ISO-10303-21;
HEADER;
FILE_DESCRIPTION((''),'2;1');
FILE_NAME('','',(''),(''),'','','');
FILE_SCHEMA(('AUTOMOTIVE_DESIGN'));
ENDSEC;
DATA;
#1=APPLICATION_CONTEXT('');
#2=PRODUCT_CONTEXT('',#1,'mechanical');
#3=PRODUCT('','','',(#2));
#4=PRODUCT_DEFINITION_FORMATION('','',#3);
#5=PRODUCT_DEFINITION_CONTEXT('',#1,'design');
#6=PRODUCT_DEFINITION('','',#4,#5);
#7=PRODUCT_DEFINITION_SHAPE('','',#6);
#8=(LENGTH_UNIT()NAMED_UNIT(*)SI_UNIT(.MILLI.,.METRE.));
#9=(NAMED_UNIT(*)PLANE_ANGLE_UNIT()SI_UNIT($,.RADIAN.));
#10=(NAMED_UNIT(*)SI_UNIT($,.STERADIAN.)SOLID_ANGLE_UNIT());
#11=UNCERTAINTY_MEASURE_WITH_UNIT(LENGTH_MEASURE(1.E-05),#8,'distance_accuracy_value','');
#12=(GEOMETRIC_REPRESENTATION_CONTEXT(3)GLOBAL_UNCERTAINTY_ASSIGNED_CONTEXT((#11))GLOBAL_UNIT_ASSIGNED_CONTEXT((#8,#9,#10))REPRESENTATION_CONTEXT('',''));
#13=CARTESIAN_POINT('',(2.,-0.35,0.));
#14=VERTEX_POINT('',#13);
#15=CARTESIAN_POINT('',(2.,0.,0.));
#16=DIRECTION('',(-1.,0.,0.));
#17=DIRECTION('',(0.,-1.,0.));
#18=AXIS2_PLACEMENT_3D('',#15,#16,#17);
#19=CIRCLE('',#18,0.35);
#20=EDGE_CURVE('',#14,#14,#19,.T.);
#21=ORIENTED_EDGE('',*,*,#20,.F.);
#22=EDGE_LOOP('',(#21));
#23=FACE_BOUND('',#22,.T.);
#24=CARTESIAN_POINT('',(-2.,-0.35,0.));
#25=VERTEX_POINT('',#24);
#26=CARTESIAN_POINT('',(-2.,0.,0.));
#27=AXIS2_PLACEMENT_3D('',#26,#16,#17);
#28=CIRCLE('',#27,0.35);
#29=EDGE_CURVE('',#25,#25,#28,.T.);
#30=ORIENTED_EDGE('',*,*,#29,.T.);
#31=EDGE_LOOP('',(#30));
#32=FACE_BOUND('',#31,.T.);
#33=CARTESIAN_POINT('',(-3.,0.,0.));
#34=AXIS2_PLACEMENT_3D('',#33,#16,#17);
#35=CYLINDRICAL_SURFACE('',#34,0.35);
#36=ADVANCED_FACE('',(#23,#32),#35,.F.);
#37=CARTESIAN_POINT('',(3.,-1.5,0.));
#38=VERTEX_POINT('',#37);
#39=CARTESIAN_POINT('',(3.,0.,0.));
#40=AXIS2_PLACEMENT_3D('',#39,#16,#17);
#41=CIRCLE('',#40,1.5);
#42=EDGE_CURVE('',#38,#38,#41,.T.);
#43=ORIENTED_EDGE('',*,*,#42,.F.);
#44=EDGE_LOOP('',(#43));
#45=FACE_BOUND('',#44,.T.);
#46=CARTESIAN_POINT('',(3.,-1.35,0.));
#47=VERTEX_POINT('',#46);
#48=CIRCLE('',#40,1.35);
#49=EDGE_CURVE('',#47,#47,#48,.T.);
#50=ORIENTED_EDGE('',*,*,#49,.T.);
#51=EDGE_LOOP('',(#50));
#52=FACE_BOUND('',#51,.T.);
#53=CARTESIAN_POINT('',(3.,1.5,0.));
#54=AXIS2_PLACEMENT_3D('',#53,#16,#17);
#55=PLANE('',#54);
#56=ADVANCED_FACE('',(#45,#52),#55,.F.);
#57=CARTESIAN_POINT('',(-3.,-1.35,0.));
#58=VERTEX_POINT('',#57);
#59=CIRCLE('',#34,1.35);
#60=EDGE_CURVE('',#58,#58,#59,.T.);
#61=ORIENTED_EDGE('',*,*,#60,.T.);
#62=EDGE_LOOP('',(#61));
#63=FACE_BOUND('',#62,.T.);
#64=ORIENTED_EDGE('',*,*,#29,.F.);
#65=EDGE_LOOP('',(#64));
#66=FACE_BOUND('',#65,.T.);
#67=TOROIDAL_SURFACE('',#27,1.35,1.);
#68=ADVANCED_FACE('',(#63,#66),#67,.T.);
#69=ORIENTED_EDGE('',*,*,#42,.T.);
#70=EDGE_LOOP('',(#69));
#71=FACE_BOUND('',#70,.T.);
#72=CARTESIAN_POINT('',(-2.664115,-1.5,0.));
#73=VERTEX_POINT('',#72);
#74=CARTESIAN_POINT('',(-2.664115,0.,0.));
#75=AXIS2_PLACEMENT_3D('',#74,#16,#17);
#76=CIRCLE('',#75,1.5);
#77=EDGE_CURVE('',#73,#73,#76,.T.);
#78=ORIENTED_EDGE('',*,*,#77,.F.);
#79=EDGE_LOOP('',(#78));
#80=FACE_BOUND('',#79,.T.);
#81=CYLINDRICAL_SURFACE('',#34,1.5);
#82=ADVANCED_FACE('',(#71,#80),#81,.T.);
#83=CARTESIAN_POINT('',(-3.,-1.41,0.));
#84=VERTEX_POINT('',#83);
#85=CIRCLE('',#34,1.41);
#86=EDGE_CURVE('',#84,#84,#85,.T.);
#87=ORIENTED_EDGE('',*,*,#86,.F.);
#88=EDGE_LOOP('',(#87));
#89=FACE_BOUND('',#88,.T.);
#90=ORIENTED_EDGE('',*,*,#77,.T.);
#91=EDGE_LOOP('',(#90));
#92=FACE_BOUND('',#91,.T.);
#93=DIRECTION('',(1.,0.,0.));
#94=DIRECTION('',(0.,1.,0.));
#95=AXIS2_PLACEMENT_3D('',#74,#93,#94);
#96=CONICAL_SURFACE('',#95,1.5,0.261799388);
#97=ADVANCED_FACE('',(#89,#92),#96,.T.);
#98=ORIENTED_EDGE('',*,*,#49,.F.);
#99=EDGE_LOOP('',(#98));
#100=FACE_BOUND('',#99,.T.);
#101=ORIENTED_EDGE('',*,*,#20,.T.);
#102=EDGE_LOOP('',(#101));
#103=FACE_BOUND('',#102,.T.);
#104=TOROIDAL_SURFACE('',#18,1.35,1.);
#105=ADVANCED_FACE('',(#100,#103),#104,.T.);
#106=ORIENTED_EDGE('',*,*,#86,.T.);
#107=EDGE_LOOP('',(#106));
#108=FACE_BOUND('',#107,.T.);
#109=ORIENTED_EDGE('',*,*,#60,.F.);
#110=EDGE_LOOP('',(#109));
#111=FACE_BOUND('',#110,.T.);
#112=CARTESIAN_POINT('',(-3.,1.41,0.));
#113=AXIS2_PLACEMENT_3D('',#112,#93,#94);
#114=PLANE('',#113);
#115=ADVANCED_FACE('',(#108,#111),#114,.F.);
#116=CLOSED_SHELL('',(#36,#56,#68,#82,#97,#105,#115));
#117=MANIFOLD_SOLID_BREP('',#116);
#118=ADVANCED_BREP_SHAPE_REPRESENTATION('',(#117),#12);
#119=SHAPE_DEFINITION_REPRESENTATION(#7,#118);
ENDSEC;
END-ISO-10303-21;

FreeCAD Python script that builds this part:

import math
import FreeCAD as App
import Part
import Sketcher

V = App.Vector
Q = App.Units.Quantity

doc = App.newDocument("Part")
body = doc.addObject("PartDesign::Body", "Body")

sketch1 = body.newObject("Sketcher::SketchObject", "Sketch")
sketch1.AttachmentSupport = (doc.getObject("XY_Plane"), [""])
sketch1.MapMode = "FlatFace"
sketch1.addGeometry([
    Part.LineSegment(V(-2.66, 1.5, 0), V(-3, 1.41, 0)),
    Part.LineSegment(V(-3, 1.41, 0), V(-3, 1.35, 0)),
    Part.ArcOfCircle(Part.Circle(V(-2, 1.35, 0), V(0, 0, 1), 1), math.radians(-180), math.radians(-90)),
    Part.LineSegment(V(-2, 0.35, 0), V(2, 0.35, 0)),
    Part.ArcOfCircle(Part.Circle(V(2, 1.35, 0), V(0, 0, 1), 1), math.radians(-90), math.radians(0)),
    Part.LineSegment(V(3, 1.35, 0), V(3, 1.5, 0)),
    Part.LineSegment(V(3, 1.5, 0), V(-2.66, 1.5, 0)),
], False)
sketch1.addConstraint([
    Sketcher.Constraint("Coincident", 0, 2, 1, 1),
    Sketcher.Constraint("Tangent", 1, 2, 2, 1),
    Sketcher.Constraint("Tangent", 2, 2, 3, 1),
    Sketcher.Constraint("Tangent", 3, 2, 4, 1),
    Sketcher.Constraint("Tangent", 4, 2, 5, 1),
    Sketcher.Constraint("Coincident", 5, 2, 6, 1),
    Sketcher.Constraint("Coincident", 6, 2, 0, 1),
    Sketcher.Constraint("Vertical", 1),
    Sketcher.Constraint("Horizontal", 3),
    Sketcher.Constraint("Vertical", 5),
    Sketcher.Constraint("Horizontal", 6),
    Sketcher.Constraint("Equal", 2, 4),
    Sketcher.Constraint("Radius", 2, 1.0),
    Sketcher.Constraint("DistanceX", 3, 1, 3, 2, 4.0),
    Sketcher.Constraint("Angle", 0, Q("-165 deg")),
    Sketcher.Constraint("DistanceX", 2, 3, -1, 1, 2.0),
    Sketcher.Constraint("DistanceY", 1, 2, 1, 1, 0.06),
    Sketcher.Constraint("DistanceY", 5, 1, 5, 2, 0.15),
    Sketcher.Constraint("DistanceY", -1, 1, 5, 2, 1.5),
])
revolution = body.newObject("PartDesign::Revolution", "Revolution")
revolution.Profile = sketch1
revolution.ReferenceAxis = (sketch1, ["H_Axis"])
revolution.Angle = 360

doc.recompute()
